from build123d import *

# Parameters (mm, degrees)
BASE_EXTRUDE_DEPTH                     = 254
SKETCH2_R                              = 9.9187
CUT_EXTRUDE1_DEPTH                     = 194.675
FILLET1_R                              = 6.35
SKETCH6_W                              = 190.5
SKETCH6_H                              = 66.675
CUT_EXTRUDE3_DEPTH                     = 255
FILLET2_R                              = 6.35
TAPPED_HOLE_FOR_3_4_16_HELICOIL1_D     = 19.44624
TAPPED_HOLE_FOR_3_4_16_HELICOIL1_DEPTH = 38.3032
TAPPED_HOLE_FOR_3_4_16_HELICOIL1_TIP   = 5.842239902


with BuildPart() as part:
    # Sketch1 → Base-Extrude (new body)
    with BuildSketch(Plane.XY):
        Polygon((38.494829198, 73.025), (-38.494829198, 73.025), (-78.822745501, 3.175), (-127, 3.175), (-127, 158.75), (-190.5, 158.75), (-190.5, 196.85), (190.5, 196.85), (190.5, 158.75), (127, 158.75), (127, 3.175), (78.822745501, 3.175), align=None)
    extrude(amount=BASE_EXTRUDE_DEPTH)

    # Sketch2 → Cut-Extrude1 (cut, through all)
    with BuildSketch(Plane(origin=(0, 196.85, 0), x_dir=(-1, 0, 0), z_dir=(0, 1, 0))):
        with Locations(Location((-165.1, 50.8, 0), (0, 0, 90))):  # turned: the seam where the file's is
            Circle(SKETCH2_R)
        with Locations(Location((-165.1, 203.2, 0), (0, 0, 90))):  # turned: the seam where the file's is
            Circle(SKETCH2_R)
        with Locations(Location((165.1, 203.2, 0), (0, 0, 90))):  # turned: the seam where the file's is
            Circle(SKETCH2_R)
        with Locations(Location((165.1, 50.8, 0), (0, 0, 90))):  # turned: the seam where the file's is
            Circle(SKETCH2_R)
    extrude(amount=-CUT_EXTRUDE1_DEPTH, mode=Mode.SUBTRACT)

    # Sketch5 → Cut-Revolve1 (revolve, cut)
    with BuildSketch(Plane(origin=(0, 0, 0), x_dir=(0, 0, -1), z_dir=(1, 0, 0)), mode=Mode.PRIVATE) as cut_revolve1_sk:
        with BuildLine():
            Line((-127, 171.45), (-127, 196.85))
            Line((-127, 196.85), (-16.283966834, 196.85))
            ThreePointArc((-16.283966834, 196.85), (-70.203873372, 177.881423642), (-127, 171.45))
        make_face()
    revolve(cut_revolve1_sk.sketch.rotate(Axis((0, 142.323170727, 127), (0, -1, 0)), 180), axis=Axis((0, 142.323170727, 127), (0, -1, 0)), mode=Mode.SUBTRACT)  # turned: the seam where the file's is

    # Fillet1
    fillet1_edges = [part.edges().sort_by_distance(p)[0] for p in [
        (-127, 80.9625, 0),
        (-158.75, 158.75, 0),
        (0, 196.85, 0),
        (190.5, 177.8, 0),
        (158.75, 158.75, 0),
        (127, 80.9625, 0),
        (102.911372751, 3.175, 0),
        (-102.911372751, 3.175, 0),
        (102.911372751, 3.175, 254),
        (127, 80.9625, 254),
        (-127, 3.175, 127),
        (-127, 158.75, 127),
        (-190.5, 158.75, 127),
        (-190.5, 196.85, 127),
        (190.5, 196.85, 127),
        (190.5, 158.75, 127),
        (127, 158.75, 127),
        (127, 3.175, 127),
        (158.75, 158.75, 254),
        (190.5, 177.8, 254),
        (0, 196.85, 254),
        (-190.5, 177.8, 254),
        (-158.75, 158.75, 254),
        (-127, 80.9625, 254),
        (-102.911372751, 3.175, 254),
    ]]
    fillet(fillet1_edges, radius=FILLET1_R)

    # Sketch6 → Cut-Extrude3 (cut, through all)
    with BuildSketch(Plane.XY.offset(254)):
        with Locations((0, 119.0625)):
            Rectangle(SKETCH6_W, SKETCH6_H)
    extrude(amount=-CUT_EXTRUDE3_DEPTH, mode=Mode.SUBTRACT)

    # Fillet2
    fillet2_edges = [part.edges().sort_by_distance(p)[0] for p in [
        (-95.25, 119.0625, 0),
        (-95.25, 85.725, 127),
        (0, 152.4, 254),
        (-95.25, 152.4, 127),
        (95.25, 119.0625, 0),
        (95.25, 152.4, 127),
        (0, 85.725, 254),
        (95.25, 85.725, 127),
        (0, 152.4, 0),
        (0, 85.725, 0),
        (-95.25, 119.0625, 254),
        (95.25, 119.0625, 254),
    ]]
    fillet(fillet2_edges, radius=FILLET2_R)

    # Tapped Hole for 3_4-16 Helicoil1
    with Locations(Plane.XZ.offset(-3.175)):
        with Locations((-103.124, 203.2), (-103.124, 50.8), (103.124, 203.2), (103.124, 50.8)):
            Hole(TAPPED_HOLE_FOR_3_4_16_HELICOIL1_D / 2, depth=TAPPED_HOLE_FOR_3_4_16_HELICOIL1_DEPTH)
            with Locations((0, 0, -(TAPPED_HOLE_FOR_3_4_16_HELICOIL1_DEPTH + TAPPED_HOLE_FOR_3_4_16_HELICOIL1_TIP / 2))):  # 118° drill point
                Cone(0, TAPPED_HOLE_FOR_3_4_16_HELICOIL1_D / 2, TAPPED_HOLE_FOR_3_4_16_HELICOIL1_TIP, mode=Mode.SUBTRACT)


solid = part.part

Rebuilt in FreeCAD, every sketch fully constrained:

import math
import FreeCAD as App
import Part
import Sketcher

V = App.Vector
Q = App.Units.Quantity


def edges_at(feature, points):
    """Names of the edges that pass closest to the given points."""
    edges = feature.Shape.Edges
    near = lambda p: min(range(len(edges)), key=lambda i: edges[i].distToShape(Part.Vertex(*p))[0])
    return sorted({f"Edge{near(p) + 1}" for p in points})


def add_polygon(sketch, points):
    """Adds a closed chain of lines whose ends are joined by coincident constraints."""
    first, n = sketch.GeometryCount, len(points)
    for a, b in zip(points, points[1:] + points[:1]):
        sketch.addGeometry(Part.LineSegment(App.Vector(*a, 0), App.Vector(*b, 0)), False)
    for i in range(n):
        sketch.addConstraint(Sketcher.Constraint("Coincident", first + i, 2, first + (i + 1) % n, 1))

doc = App.newDocument("Part")
params = doc.addObject("Spreadsheet::Sheet", "Params")
for row, (alias, value) in enumerate([
    ("sketch1_width", "15 in"),
    ("sketch1_width2", "2.5 in"),
    ("sketch1_height", "1.5 in"),
    ("sketch1_height2", "6.125 in"),
    ("pad1_length", "10 in"),
    ("sketch2_diameter", "0.781 in"),
    ("sketch3_radius", "10 in"),
    ("sketch3_width", "1 in"),
    ("groove_angle", "360 deg"),
    ("fillet_radius", "0.25 in"),
    ("sketch4_width", "7.5 in"),
    ("sketch4_height", "2.625 in"),
    ("fillet2_radius", "0.25 in"),
    ("hole_diameter", "0.7656 in"),
    ("hole_depth", "1.508 in"),
], start=1):
    params.set(f"A{row}", alias)
    params.set(f"B{row}", "=" + value)
    params.setAlias(f"B{row}", alias)

body = doc.addObject("PartDesign::Body", "Body")

sketch1 = doc.addObject("Sketcher::SketchObject", "Sketch")
body.addObject(sketch1)
sketch1.AttachmentSupport = (doc.XY_Plane, [""])
sketch1.MapMode = "FlatFace"
add_polygon(sketch1, [(-38, 73), (38, 73), (79, 3), (127, 3), (127, 159), (190, 159), (190, 197), (-190, 197), (-190, 159), (-127, 159), (-127, 3), (-79, 3)])
sketch1.addConstraint(Sketcher.Constraint("Horizontal", 0))
sketch1.addConstraint(Sketcher.Constraint("Horizontal", 2))
sketch1.addConstraint(Sketcher.Constraint("Vertical", 3))
sketch1.addConstraint(Sketcher.Constraint("Horizontal", 4))
sketch1.addConstraint(Sketcher.Constraint("Vertical", 5))
sketch1.addConstraint(Sketcher.Constraint("Horizontal", 6))
sketch1.addConstraint(Sketcher.Constraint("Vertical", 7))
sketch1.addConstraint(Sketcher.Constraint("Horizontal", 8))
sketch1.addConstraint(Sketcher.Constraint("Vertical", 9))
sketch1.addConstraint(Sketcher.Constraint("Horizontal", 10))
sketch1.addConstraint(Sketcher.Constraint("Symmetric", 4, 2, 7, 2, -2))
sketch1.addConstraint(Sketcher.Constraint("Symmetric", 2, 2, 9, 2, -2))
sketch1.addConstraint(Sketcher.Constraint("Equal", 2, 10))
sketch1.addConstraint(Sketcher.Constraint("Equal", 1, 11))
sketch1.addConstraint(Sketcher.Constraint("DistanceX", 6, 2, 6, 1, Q("15 in")))
sketch1.addConstraint(Sketcher.Constraint("DistanceX", 4, 1, 4, 2, Q("2.5 in")))
sketch1.addConstraint(Sketcher.Constraint("DistanceY", 5, 1, 5, 2, Q("1.5 in")))
sketch1.addConstraint(Sketcher.Constraint("Angle", 1, Q("-60 deg")))
sketch1.addConstraint(Sketcher.Constraint("DistanceY", 3, 1, 3, 2, Q("6.125 in")))
sketch1.addConstraint(Sketcher.Constraint("DistanceY", -1, 1, 3, 2, Q("6.25 in")))
sketch1.addConstraint(Sketcher.Constraint("DistanceY", 1, 2, 0, 2, Q("2.75 in")))
sketch1.addConstraint(Sketcher.Constraint("DistanceX", 0, 1, 0, 2, 76.989658))
sketch1.setExpression("Constraints[26]", "Params.sketch1_width")
sketch1.setExpression("Constraints[27]", "Params.sketch1_width2")
sketch1.setExpression("Constraints[28]", "Params.sketch1_height")
sketch1.setExpression("Constraints[30]", "Params.sketch1_height2")
pad1 = doc.addObject("PartDesign::Pad", "Pad")
body.addObject(pad1)
pad1.Profile = sketch1
pad1.setExpression("Length", "Params.pad1_length")

sketch2 = doc.addObject("Sketcher::SketchObject", "Sketch001")
body.addObject(sketch2)
sketch2.AttachmentSupport = (doc.XZ_Plane, [""])
sketch2.MapMode = "FlatFace"
sketch2.AttachmentOffset = App.Placement(V(0, 0, -7.75 * 25.4), App.Rotation())
sketch2.addGeometry(Part.Circle(V(165, 51, 0), V(0, 0, 1), 10), False)
sketch2.addGeometry(Part.Circle(V(165, 203, 0), V(0, 0, 1), 10), False)
sketch2.addGeometry(Part.Circle(V(-165, 203, 0), V(0, 0, 1), 10), False)
sketch2.addGeometry(Part.Circle(V(-165, 51, 0), V(0, 0, 1), 10), False)
sketch2.addConstraint(Sketcher.Constraint("Equal", 0, 1))
sketch2.addConstraint(Sketcher.Constraint("Equal", 1, 2))
sketch2.addConstraint(Sketcher.Constraint("Equal", 2, 3))
sketch2.addConstraint(Sketcher.Constraint("Symmetric", 1, 3, 2, 3, -2))
sketch2.addConstraint(Sketcher.Constraint("Symmetric", 0, 3, 3, 3, -2))
sketch2.addConstraint(Sketcher.Constraint("Vertical", 0, 3, 1, 3))
sketch2.addConstraint(Sketcher.Constraint("Diameter", 0, Q("0.781 in")))
sketch2.addConstraint(Sketcher.Constraint("DistanceY", -1, 1, 0, 3, Q("2 in")))
sketch2.addConstraint(Sketcher.Constraint("DistanceY", -1, 1, 1, 3, Q("8 in")))
sketch2.addConstraint(Sketcher.Constraint("DistanceX", 2, 3, 1, 3, Q("13 in")))
sketch2.setExpression("Constraints[6]", "Params.sketch2_diameter")
pocket1 = doc.addObject("PartDesign::Pocket", "Pocket")
body.addObject(pocket1)
pocket1.Profile = sketch2
pocket1.Type = "ThroughAll"
pocket1.Reversed = True

sketch3 = doc.addObject("Sketcher::SketchObject", "Sketch002")
body.addObject(sketch3)
sketch3.AttachmentSupport = (doc.YZ_Plane, [""])
sketch3.MapMode = "FlatFace"
sketch3.addGeometry(Part.LineSegment(V(197, 127, 0), V(171, 127, 0)), False)
sketch3.addGeometry(Part.ArcOfCircle(Part.Circle(V(425, 127, 0), V(0, 0, 1), 254), math.radians(-180), math.radians(-154)), False)
sketch3.addGeometry(Part.LineSegment(V(197, 16, 0), V(197, 127, 0)), False)
sketch3.addGeometry(Part.LineSegment(V(425, 127, 0), V(171, 127, 0)), True)
sketch3.addConstraint(Sketcher.Constraint("Coincident", 0, 2, 1, 1))
sketch3.addConstraint(Sketcher.Constraint("Coincident", 1, 2, 2, 1))
sketch3.addConstraint(Sketcher.Constraint("Coincident", 2, 2, 0, 1))
sketch3.addConstraint(Sketcher.Constraint("Horizontal", 0))
sketch3.addConstraint(Sketcher.Constraint("Vertical", 2))
sketch3.addConstraint(Sketcher.Constraint("Horizontal", 3))
sketch3.addConstraint(Sketcher.Constraint("Coincident", 3, 1, 1, 3))
sketch3.addConstraint(Sketcher.Constraint("Coincident", 3, 2, 0, 2))
sketch3.addConstraint(Sketcher.Constraint("Radius", 1, Q("10 in")))
sketch3.addConstraint(Sketcher.Constraint("DistanceX", 0, 2, 0, 1, Q("1 in")))
sketch3.addConstraint(Sketcher.Constraint("DistanceY", -1, 1, 1, 3, Q("5 in")))
sketch3.addConstraint(Sketcher.Constraint("DistanceX", -1, 1, 1, 3, Q("16.75 in")))
sketch3.setExpression("Constraints[8]", "Params.sketch3_radius")
sketch3.setExpression("Constraints[9]", "Params.sketch3_width")
groove = doc.addObject("PartDesign::Groove", "Groove")
body.addObject(groove)
groove.Profile = sketch3
groove.ReferenceAxis = (sketch3, ["Axis0"])
groove.setExpression("Angle", "Params.groove_angle")
doc.recompute()

fillet = doc.addObject("PartDesign::Fillet", "Fillet")
body.addObject(fillet)
fillet.Base = (groove, edges_at(groove, [
    (-127, 80.963, 0),
    (-158.75, 158.75, 0),
    (0, 196.85, 0),
    (190.5, 177.8, 0),
    (158.75, 158.75, 0),
    (127, 80.963, 0),
    (102.911, 3.175, 0),
    (-102.911, 3.175, 0),
    (102.911, 3.175, 254),
    (127, 80.963, 254),
    (-127, 3.175, 127),
    (-127, 158.75, 127),
    (-190.5, 158.75, 127),
    (-190.5, 196.85, 127),
    (190.5, 196.85, 127),
    (190.5, 158.75, 127),
    (127, 158.75, 127),
    (127, 3.175, 127),
    (158.75, 158.75, 254),
    (190.5, 177.8, 254),
    (0, 196.85, 254),
    (-190.5, 177.8, 254),
    (-158.75, 158.75, 254),
    (-127, 80.963, 254),
    (-102.911, 3.175, 254),
]))
fillet.setExpression("Radius", "Params.fillet_radius")

sketch4 = doc.addObject("Sketcher::SketchObject", "Sketch003")
body.addObject(sketch4)
sketch4.AttachmentSupport = (doc.XY_Plane, [""])
sketch4.MapMode = "FlatFace"
sketch4.AttachmentOffset = App.Placement(V(0, 0, 10 * 25.4), App.Rotation())
add_polygon(sketch4, [(-95, 152), (-95, 86), (95, 86), (95, 152)])
sketch4.addConstraint(Sketcher.Constraint("Vertical", 0))
sketch4.addConstraint(Sketcher.Constraint("Horizontal", 1))
sketch4.addConstraint(Sketcher.Constraint("Vertical", 2))
sketch4.addConstraint(Sketcher.Constraint("Horizontal", 3))
sketch4.addConstraint(Sketcher.Constraint("DistanceX", 1, 1, 1, 2, Q("7.5 in")))
sketch4.addConstraint(Sketcher.Constraint("DistanceY", -1, 1, 2, 2, Q("6 in")))
sketch4.addConstraint(Sketcher.Constraint("DistanceY", 0, 2, 0, 1, Q("2.625 in")))
sketch4.addConstraint(Sketcher.Constraint("DistanceX", 0, 2, -1, 1, Q("3.75 in")))
sketch4.setExpression("Constraints[8]", "Params.sketch4_width")
sketch4.setExpression("Constraints[10]", "Params.sketch4_height")
pocket2 = doc.addObject("PartDesign::Pocket", "Pocket001")
body.addObject(pocket2)
pocket2.Profile = sketch4
pocket2.Type = "ThroughAll"
doc.recompute()

fillet2 = doc.addObject("PartDesign::Fillet", "Fillet001")
body.addObject(fillet2)
fillet2.Base = (pocket2, edges_at(pocket2, [
    (-95.25, 119.062, 0),
    (-95.25, 85.725, 127),
    (0, 152.4, 254),
    (-95.25, 152.4, 127),
    (95.25, 119.062, 0),
    (95.25, 152.4, 127),
    (0, 85.725, 254),
    (95.25, 85.725, 127),
    (0, 152.4, 0),
    (0, 85.725, 0),
    (-95.25, 119.062, 254),
    (95.25, 119.062, 254),
]))
fillet2.setExpression("Radius", "Params.fillet2_radius")

sketch5 = doc.addObject("Sketcher::SketchObject", "Sketch004")
body.addObject(sketch5)
sketch5.AttachmentSupport = (doc.XZ_Plane, [""])
sketch5.MapMode = "FlatFace"
sketch5.AttachmentOffset = App.Placement(V(0, 0, -0.125 * 25.4), App.Rotation())
sketch5.addGeometry(Part.Circle(V(-103, 203, 0), V(0, 0, 1), 10), False)
sketch5.addGeometry(Part.Circle(V(-103, 51, 0), V(0, 0, 1), 10), False)
sketch5.addGeometry(Part.Circle(V(103, 203, 0), V(0, 0, 1), 10), False)
sketch5.addGeometry(Part.Circle(V(103, 51, 0), V(0, 0, 1), 10), False)
sketch5.addConstraint(Sketcher.Constraint("Equal", 0, 1))
sketch5.addConstraint(Sketcher.Constraint("Equal", 1, 2))
sketch5.addConstraint(Sketcher.Constraint("Equal", 2, 3))
sketch5.addConstraint(Sketcher.Constraint("Symmetric", 0, 3, 2, 3, -2))
sketch5.addConstraint(Sketcher.Constraint("Symmetric", 1, 3, 3, 3, -2))
sketch5.addConstraint(Sketcher.Constraint("Vertical", 0, 3, 1, 3))
sketch5.addConstraint(Sketcher.Constraint("DistanceY", -1, 1, 0, 3, Q("8 in")))
sketch5.addConstraint(Sketcher.Constraint("DistanceY", -1, 1, 1, 3, Q("2 in")))
sketch5.addConstraint(Sketcher.Constraint("Diameter", 0, Q("0.7656 in")))
sketch5.addConstraint(Sketcher.Constraint("DistanceX", 0, 3, -1, 1, Q("4.06 in")))
doc.recompute()
hole = doc.addObject("PartDesign::Hole", "Hole")
body.addObject(hole)
hole.Profile = sketch5
hole.ThreadType = "None"
hole.setExpression("Diameter", "Params.hole_diameter")
hole.DepthType = "Dimension"
hole.setExpression("Depth", "Params.hole_depth")
hole.DrillPoint = "Angled"
hole.DrillPointAngle = 118

doc.recompute()
